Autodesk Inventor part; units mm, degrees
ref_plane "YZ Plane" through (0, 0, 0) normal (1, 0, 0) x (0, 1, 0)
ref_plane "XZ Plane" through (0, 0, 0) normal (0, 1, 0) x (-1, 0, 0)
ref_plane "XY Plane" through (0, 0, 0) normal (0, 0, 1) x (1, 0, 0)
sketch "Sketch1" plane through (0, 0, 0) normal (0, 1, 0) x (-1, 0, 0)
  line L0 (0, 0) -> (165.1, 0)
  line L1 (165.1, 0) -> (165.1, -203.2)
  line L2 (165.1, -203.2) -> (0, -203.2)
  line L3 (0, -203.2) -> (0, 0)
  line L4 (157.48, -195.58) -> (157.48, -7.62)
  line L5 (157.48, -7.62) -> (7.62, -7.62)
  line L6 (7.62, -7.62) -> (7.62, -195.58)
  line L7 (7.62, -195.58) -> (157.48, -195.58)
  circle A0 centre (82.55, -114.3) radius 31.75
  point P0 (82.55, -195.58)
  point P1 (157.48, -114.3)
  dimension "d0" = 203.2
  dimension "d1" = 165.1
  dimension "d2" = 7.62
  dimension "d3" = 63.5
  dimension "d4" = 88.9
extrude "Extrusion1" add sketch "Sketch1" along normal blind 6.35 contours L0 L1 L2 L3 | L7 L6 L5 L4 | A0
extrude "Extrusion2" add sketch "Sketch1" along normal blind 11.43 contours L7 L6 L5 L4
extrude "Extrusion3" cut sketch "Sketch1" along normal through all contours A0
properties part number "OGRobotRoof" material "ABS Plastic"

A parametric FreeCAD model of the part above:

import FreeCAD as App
import Part
import Sketcher
from FreeCAD import Vector
Q = App.Units.Quantity

doc = App.newDocument("Part")
body = doc.addObject("PartDesign::Body", "Body")

# Sketch on XZ plane
sketch1 = body.newObject("Sketcher::SketchObject", "Sketch")
sketch1.AttachmentSupport = (doc.getObject("XZ_Plane"), [""])
sketch1.MapMode = "FlatFace"
sketch1.addGeometry([
    Part.LineSegment(Vector(-165.1, 0, 0), Vector(0, 0, 0)),
    Part.LineSegment(Vector(0, 0, 0), Vector(0, -203.2, 0)),
    Part.LineSegment(Vector(0, -203.2, 0), Vector(-165.1, -203.2, 0)),
    Part.LineSegment(Vector(-165.1, -203.2, 0), Vector(-165.1, 0, 0)),
], False)
sketch1.addConstraint([
    Sketcher.Constraint("Coincident", 0, 2, 1, 1),
    Sketcher.Constraint("Coincident", 1, 2, 2, 1),
    Sketcher.Constraint("Coincident", 2, 2, 3, 1),
    Sketcher.Constraint("Coincident", 3, 2, 0, 1),
    Sketcher.Constraint("Horizontal", 0),
    Sketcher.Constraint("Vertical", 1),
    Sketcher.Constraint("Horizontal", 2),
    Sketcher.Constraint("Vertical", 3),
    Sketcher.Constraint("Coincident", 0, 2, -1, 1),
    Sketcher.Constraint("DistanceY", 1, 2, 1, 1, Q("8 in")),
    Sketcher.Constraint("DistanceX", 0, 1, 0, 2, Q("6.5 in")),
])
pad1 = body.newObject("PartDesign::Pad", "Pad")
pad1.Profile = sketch1
pad1.Length = Q("0.25 in")
pad1.Reversed = True

# Sketch on XZ plane
sketch2 = body.newObject("Sketcher::SketchObject", "Sketch001")
sketch2.AttachmentSupport = (doc.getObject("XZ_Plane"), [""])
sketch2.MapMode = "FlatFace"
sketch2.addGeometry([
    Part.LineSegment(Vector(-7.62, -195.58, 0), Vector(-157.48, -195.58, 0)),  # 0
    Part.LineSegment(Vector(-157.48, -195.58, 0), Vector(-157.48, -7.62, 0)),  # 1
    Part.LineSegment(Vector(-157.48, -7.62, 0), Vector(-7.62, -7.62, 0)),  # 2
    Part.LineSegment(Vector(-7.62, -7.62, 0), Vector(-7.62, -195.58, 0)),  # 3
    Part.Circle(Vector(-82.55, -114.3, 0), Vector(0, 0, 1), 31.75),  # 4
], False)
sketch2.addConstraint([
    Sketcher.Constraint("Coincident", 0, 2, 1, 1),
    Sketcher.Constraint("Coincident", 1, 2, 2, 1),
    Sketcher.Constraint("Coincident", 2, 2, 3, 1),
    Sketcher.Constraint("Coincident", 3, 2, 0, 1),
    Sketcher.Constraint("Horizontal", 0),
    Sketcher.Constraint("Vertical", 1),
    Sketcher.Constraint("Horizontal", 2),
    Sketcher.Constraint("Vertical", 3),
    Sketcher.Constraint("Diameter", 4, Q("2.5 in")),
    Sketcher.Constraint("DistanceY", 1, 2, -1, 1, Q("0.3 in")),
    Sketcher.Constraint("DistanceX", 2, 2, -1, 1, Q("0.3 in")),
    Sketcher.Constraint("DistanceX", 0, 2, 0, 1, Q("5.9 in")),
    Sketcher.Constraint("DistanceY", 1, 1, 1, 2, Q("7.4 in")),
    Sketcher.Constraint("DistanceY", 4, 3, -1, 1, Q("4.5 in")),
    Sketcher.Constraint("DistanceX", 4, 3, -1, 1, Q("3.25 in")),
])
pad2 = body.newObject("PartDesign::Pad", "Pad001")
pad2.Profile = sketch2
pad2.Length = Q("0.45 in")
pad2.Reversed = True

# Sketch on XZ plane
sketch3 = body.newObject("Sketcher::SketchObject", "Sketch002")
sketch3.AttachmentSupport = (doc.getObject("XZ_Plane"), [""])
sketch3.MapMode = "FlatFace"
sketch3.addGeometry(Part.Circle(Vector(-82.55, -114.3, 0), Vector(0, 0, 1), 31.75), False)
sketch3.addConstraint([
    Sketcher.Constraint("Diameter", 0, Q("2.5 in")),
    Sketcher.Constraint("DistanceY", 0, 3, -1, 1, Q("4.5 in")),
    Sketcher.Constraint("DistanceX", 0, 3, -1, 1, Q("3.25 in")),
])
pocket1 = body.newObject("PartDesign::Pocket", "Pocket")
pocket1.Profile = sketch3
pocket1.Type = "ThroughAll"

doc.recompute()
